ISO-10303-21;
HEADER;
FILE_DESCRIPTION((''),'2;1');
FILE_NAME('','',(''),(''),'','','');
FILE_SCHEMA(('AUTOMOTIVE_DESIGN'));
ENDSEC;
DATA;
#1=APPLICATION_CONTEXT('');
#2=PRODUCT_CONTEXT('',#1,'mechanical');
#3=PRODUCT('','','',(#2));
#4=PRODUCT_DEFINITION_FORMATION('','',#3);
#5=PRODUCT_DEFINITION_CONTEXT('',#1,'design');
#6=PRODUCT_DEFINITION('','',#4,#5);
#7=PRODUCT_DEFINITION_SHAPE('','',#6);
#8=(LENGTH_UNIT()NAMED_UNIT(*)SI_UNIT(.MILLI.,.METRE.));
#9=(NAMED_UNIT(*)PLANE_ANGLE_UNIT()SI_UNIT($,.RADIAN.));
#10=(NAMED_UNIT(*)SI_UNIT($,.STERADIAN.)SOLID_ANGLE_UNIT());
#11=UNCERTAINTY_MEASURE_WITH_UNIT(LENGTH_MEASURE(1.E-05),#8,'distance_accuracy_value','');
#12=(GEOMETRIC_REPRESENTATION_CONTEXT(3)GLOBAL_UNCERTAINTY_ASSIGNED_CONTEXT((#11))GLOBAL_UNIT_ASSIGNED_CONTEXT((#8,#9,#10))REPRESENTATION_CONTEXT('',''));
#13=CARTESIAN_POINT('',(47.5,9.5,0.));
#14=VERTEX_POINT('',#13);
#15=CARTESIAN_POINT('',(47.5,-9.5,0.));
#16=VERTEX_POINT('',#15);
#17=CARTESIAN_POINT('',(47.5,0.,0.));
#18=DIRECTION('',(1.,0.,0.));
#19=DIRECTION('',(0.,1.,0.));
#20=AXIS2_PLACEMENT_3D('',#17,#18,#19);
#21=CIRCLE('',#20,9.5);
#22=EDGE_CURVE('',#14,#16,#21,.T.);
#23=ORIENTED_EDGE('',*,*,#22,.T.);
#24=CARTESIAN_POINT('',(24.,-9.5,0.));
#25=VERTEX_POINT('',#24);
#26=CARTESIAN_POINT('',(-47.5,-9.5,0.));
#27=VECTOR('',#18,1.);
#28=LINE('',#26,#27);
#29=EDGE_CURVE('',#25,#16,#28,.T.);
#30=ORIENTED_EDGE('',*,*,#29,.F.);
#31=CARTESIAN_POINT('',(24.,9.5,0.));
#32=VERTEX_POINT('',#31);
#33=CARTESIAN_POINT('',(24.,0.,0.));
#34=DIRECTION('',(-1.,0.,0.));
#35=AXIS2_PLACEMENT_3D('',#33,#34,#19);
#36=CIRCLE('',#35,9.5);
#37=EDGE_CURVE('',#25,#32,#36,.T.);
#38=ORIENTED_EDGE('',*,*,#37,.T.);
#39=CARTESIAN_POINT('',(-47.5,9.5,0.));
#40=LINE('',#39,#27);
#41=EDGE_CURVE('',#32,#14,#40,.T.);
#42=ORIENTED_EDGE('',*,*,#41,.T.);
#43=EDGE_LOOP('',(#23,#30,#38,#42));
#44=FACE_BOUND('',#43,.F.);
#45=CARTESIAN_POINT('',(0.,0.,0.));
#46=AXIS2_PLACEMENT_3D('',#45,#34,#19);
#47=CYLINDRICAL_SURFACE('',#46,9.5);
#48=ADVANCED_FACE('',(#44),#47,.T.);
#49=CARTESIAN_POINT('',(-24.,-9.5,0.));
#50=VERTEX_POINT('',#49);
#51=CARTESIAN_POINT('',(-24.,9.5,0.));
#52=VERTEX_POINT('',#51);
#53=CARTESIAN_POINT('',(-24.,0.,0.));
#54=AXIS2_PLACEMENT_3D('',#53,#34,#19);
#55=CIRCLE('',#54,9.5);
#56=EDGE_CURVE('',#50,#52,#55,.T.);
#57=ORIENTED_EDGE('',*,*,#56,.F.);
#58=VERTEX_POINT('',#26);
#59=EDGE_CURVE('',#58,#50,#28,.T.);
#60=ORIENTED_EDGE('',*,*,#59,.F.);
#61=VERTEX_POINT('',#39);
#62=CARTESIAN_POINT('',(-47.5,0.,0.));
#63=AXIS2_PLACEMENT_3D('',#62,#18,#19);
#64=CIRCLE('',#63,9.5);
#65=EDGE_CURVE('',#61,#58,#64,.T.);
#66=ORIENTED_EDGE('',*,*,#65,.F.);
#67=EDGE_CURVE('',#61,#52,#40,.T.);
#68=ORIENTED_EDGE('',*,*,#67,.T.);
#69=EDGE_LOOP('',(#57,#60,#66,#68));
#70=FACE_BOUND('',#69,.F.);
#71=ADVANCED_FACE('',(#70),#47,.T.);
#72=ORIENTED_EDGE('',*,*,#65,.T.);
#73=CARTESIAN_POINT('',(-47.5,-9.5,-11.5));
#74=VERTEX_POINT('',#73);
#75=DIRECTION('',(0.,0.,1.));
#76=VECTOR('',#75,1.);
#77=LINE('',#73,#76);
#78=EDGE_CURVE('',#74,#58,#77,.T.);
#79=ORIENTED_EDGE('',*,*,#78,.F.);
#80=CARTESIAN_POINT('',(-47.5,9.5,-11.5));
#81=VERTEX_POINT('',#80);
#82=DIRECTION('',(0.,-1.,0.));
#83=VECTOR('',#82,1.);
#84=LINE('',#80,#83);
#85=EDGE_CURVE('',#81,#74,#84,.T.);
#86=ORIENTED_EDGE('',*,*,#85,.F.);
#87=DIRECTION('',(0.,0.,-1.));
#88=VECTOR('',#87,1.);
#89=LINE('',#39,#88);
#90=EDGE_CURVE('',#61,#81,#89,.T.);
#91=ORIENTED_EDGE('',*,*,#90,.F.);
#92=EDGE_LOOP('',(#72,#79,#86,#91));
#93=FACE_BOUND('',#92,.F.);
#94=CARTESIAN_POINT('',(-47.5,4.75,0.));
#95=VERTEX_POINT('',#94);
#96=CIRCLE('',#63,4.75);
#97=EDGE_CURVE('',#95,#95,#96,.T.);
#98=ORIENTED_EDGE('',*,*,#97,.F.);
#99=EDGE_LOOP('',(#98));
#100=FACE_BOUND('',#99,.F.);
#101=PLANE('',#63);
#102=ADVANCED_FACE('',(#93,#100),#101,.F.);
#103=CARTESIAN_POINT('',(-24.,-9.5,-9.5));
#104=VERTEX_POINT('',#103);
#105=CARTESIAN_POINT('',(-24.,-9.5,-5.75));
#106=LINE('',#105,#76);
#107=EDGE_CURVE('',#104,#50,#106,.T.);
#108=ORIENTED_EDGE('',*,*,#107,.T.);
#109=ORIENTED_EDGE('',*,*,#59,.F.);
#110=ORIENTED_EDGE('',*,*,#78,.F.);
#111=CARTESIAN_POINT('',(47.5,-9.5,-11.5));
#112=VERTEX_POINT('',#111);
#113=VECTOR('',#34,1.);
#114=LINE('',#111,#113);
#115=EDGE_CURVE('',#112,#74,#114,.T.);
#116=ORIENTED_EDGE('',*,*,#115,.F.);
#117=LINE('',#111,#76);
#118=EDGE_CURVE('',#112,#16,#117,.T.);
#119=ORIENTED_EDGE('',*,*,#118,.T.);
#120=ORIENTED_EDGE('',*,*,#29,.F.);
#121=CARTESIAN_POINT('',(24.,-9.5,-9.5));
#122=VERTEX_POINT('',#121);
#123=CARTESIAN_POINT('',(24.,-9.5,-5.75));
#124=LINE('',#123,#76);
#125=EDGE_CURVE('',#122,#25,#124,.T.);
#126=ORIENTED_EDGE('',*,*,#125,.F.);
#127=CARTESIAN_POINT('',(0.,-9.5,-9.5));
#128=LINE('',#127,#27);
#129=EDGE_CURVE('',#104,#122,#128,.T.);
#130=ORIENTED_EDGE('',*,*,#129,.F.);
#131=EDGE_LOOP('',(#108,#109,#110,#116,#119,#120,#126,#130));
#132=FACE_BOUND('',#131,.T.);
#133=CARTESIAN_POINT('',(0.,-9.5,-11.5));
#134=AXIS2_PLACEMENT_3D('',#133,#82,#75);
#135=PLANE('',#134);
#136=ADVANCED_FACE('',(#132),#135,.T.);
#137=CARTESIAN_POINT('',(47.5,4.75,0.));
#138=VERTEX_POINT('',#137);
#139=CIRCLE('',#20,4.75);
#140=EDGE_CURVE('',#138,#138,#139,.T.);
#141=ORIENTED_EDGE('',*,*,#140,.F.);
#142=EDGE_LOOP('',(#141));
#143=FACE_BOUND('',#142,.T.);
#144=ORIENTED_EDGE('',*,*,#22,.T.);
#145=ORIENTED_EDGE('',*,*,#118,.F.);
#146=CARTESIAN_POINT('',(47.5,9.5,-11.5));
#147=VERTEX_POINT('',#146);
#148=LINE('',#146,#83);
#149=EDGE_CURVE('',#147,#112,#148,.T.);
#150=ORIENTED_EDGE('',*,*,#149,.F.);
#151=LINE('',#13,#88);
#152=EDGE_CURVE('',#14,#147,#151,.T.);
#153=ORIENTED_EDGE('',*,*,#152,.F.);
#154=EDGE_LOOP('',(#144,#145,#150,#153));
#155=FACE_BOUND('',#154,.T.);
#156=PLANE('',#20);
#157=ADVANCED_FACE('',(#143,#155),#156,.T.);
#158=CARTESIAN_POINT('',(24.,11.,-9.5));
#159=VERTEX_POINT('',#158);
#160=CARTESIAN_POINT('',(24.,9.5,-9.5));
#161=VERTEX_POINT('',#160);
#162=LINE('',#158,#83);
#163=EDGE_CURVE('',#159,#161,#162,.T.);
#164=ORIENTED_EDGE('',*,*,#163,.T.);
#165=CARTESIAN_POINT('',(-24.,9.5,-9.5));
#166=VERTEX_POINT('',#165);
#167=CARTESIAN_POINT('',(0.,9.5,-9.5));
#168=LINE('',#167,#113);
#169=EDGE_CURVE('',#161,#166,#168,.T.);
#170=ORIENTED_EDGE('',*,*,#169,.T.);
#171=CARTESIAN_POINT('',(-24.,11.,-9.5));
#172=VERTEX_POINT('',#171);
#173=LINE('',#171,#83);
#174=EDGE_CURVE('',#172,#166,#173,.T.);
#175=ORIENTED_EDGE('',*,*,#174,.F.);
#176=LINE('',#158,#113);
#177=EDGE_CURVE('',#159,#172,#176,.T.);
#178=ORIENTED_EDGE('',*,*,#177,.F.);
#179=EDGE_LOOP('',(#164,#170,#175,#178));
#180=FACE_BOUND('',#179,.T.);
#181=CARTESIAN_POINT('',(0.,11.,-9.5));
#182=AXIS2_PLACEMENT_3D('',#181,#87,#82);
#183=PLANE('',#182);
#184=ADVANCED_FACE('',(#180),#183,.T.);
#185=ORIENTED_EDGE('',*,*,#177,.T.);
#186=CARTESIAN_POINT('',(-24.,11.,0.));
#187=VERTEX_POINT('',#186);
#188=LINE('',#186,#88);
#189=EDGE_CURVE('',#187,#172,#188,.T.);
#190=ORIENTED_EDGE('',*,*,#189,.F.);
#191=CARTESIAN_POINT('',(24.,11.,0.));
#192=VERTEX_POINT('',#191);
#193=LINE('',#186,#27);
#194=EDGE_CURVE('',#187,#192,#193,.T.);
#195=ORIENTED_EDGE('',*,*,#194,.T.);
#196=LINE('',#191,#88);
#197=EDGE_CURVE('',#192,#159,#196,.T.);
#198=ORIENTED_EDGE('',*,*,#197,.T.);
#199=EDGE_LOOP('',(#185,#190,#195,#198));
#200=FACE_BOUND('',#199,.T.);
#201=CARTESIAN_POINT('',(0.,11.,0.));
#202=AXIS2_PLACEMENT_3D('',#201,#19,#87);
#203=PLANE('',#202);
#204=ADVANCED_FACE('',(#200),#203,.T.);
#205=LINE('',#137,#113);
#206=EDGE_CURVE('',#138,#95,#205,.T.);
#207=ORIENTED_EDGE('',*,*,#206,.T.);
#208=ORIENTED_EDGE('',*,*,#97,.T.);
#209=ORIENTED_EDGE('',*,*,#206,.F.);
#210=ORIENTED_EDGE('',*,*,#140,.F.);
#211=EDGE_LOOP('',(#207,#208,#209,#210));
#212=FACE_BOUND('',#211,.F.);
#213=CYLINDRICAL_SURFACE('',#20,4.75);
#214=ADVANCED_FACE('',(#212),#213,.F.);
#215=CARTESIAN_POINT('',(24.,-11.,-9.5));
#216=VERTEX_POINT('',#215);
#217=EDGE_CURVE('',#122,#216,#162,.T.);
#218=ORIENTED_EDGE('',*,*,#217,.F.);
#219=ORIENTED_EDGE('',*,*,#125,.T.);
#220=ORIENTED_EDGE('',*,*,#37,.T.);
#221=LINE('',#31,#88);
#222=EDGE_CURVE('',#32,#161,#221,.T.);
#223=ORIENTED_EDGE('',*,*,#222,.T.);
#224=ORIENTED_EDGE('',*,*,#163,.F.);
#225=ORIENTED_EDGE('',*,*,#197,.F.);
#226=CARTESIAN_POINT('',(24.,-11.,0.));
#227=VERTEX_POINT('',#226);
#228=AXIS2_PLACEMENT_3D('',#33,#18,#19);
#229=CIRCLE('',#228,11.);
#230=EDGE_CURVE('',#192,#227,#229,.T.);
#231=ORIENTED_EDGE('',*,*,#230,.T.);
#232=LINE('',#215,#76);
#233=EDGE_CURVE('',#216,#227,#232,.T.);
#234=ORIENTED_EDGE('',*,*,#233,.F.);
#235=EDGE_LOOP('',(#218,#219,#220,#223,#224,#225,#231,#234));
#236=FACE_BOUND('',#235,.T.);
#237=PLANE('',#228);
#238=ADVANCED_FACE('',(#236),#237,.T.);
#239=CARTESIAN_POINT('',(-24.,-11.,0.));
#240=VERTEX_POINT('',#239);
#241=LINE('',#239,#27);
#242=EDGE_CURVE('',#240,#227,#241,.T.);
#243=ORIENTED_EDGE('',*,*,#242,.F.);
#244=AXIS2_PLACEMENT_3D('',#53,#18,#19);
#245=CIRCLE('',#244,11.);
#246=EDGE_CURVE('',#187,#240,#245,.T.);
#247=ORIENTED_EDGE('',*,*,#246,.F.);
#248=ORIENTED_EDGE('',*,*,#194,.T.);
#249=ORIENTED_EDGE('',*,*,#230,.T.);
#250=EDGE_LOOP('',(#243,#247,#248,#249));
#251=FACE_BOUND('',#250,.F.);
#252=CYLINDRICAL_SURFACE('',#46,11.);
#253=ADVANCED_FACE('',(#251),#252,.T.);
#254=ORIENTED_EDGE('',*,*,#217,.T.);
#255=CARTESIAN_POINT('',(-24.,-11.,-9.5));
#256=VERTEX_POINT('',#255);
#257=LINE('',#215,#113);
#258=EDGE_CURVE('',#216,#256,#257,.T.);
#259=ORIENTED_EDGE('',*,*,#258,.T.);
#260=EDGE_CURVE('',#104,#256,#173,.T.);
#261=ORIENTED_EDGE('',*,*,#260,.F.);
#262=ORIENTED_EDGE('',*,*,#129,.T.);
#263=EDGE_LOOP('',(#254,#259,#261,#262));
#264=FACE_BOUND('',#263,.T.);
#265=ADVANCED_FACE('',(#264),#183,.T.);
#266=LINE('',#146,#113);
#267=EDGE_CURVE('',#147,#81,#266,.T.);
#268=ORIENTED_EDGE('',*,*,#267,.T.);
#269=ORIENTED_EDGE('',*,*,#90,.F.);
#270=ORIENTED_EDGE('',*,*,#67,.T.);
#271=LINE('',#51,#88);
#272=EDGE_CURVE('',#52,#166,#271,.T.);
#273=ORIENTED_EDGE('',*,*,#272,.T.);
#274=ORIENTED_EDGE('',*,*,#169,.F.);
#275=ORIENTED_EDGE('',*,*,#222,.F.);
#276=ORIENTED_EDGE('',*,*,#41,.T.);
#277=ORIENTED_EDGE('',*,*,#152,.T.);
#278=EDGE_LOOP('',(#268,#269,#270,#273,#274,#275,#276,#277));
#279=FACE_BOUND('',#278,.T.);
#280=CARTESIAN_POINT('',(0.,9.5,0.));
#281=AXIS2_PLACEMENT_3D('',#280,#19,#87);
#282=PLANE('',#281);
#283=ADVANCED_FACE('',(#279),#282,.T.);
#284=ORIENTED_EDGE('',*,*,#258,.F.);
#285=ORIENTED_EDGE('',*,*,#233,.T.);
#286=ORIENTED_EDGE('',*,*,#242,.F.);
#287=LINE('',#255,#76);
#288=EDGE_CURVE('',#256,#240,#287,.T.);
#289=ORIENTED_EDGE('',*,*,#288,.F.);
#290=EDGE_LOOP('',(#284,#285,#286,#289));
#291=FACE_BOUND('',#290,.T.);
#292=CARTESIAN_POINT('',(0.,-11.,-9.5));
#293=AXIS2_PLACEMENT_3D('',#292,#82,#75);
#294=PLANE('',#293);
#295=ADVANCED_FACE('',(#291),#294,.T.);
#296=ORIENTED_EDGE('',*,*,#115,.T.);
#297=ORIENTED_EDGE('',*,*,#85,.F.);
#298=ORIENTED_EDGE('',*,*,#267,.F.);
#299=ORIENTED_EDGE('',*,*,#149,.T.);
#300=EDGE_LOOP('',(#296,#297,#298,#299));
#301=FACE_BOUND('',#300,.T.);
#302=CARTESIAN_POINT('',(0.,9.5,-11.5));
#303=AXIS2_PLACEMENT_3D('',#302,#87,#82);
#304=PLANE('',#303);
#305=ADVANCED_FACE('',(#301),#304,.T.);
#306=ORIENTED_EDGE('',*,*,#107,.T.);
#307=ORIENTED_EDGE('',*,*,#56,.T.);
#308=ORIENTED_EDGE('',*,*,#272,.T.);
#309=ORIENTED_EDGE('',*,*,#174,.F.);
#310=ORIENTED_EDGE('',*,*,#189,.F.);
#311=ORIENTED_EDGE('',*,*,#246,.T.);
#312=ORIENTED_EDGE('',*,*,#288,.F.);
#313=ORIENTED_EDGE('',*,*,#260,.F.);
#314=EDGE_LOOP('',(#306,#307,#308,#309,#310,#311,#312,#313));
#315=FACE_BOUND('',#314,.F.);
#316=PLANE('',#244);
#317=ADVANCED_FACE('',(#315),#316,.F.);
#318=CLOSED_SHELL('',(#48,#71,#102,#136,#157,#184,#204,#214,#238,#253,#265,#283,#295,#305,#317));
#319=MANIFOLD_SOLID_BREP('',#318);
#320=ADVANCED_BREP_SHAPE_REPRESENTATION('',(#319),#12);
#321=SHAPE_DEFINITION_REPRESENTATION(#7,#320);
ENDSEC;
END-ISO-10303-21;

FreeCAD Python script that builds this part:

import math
import FreeCAD as App
import Part
import Sketcher
from FreeCAD import Vector

doc = App.newDocument("Part")
params = doc.addObject("Spreadsheet::Sheet", "Params")
for row, (alias, value) in enumerate([
    ("sketch1_radius", "9.5 mm"),
    ("sketch1_height", "11.5 mm"),
    ("pad1_length", "95 mm"),
    ("sketch2_radius", "11 mm"),
    ("sketch2_height", "9.5 mm"),
    ("pad2_length", "48 mm"),
    ("sketch3_diameter", "9.5 mm"),
], start=1):
    params.set(f"A{row}", alias)
    params.set(f"B{row}", "=" + value)
    params.setAlias(f"B{row}", alias)

body = doc.addObject("PartDesign::Body", "Body")

# Sketch on YZ plane
sketch1 = body.newObject("Sketcher::SketchObject", "Sketch")
sketch1.AttachmentSupport = (doc.getObject("YZ_Plane"), [""])
sketch1.MapMode = "FlatFace"
sketch1.addGeometry(Part.LineSegment(Vector(9.5, -11.5, 0), Vector(9.5, 0, 0)), False)
sketch1.addGeometry(Part.ArcOfCircle(Part.Circle(Vector(0, 0, 0), Vector(0, 0, 1), 9.5), math.radians(0), math.radians(180)), False)
sketch1.addGeometry(Part.LineSegment(Vector(-9.5, 0, 0), Vector(-9.5, -11.5, 0)), False)
sketch1.addGeometry(Part.LineSegment(Vector(-9.5, -11.5, 0), Vector(9.5, -11.5, 0)), False)
sketch1.addConstraint(Sketcher.Constraint("Tangent", 0, 2, 1, 1))
sketch1.addConstraint(Sketcher.Constraint("Tangent", 1, 2, 2, 1))
sketch1.addConstraint(Sketcher.Constraint("Coincident", 2, 2, 3, 1))
sketch1.addConstraint(Sketcher.Constraint("Coincident", 3, 2, 0, 1))
sketch1.addConstraint(Sketcher.Constraint("Vertical", 0))
sketch1.addConstraint(Sketcher.Constraint("Vertical", 2))
sketch1.addConstraint(Sketcher.Constraint("Horizontal", 3))
sketch1.addConstraint(Sketcher.Constraint("Coincident", 1, 3, -1, 1))
sketch1.addConstraint(Sketcher.Constraint("Radius", 1, 9.5))
sketch1.addConstraint(Sketcher.Constraint("DistanceY", 0, 1, 0, 2, 11.5))
sketch1.setExpression("Constraints[8]", "Params.sketch1_radius")
sketch1.setExpression("Constraints[9]", "Params.sketch1_height")
pad1 = body.newObject("PartDesign::Pad", "Pad")
pad1.Profile = sketch1
pad1.setExpression("Length", "Params.pad1_length")
pad1.Midplane = True

# Sketch on YZ plane
sketch2 = body.newObject("Sketcher::SketchObject", "Sketch001")
sketch2.AttachmentSupport = (doc.getObject("YZ_Plane"), [""])
sketch2.MapMode = "FlatFace"
sketch2.addGeometry(Part.LineSegment(Vector(11, -9.5, 0), Vector(11, 0, 0)), False)
sketch2.addGeometry(Part.ArcOfCircle(Part.Circle(Vector(0, 0, 0), Vector(0, 0, 1), 11), math.radians(0), math.radians(180)), False)
sketch2.addGeometry(Part.LineSegment(Vector(-11, 0, 0), Vector(-11, -9.5, 0)), False)
sketch2.addGeometry(Part.LineSegment(Vector(-11, -9.5, 0), Vector(11, -9.5, 0)), False)
sketch2.addConstraint(Sketcher.Constraint("Tangent", 0, 2, 1, 1))
sketch2.addConstraint(Sketcher.Constraint("Tangent", 1, 2, 2, 1))
sketch2.addConstraint(Sketcher.Constraint("Coincident", 2, 2, 3, 1))
sketch2.addConstraint(Sketcher.Constraint("Coincident", 3, 2, 0, 1))
sketch2.addConstraint(Sketcher.Constraint("Vertical", 0))
sketch2.addConstraint(Sketcher.Constraint("Vertical", 2))
sketch2.addConstraint(Sketcher.Constraint("Horizontal", 3))
sketch2.addConstraint(Sketcher.Constraint("Coincident", 1, 3, -1, 1))
sketch2.addConstraint(Sketcher.Constraint("Radius", 1, 11.0))
sketch2.addConstraint(Sketcher.Constraint("DistanceY", 0, 1, 0, 2, 9.5))
sketch2.setExpression("Constraints[8]", "Params.sketch2_radius")
sketch2.setExpression("Constraints[9]", "Params.sketch2_height")
pad2 = body.newObject("PartDesign::Pad", "Pad001")
pad2.Profile = sketch2
pad2.setExpression("Length", "Params.pad2_length")
pad2.Midplane = True

# Sketch on YZ plane
sketch3 = body.newObject("Sketcher::SketchObject", "Sketch002")
sketch3.AttachmentSupport = (doc.getObject("YZ_Plane"), [""])
sketch3.MapMode = "FlatFace"
sketch3.AttachmentOffset = App.Placement(Vector(0, 0, 47.5), App.Rotation())
sketch3.addGeometry(Part.Circle(Vector(0, 0, 0), Vector(0, 0, 1), 4.75), False)
sketch3.addConstraint(Sketcher.Constraint("Coincident", 0, 3, -1, 1))
sketch3.addConstraint(Sketcher.Constraint("Diameter", 0, 9.5))
sketch3.setExpression("Constraints[1]", "Params.sketch3_diameter")
pocket1 = body.newObject("PartDesign::Pocket", "Pocket")
pocket1.Profile = sketch3
pocket1.Type = "ThroughAll"
pocket1.Midplane = True

doc.recompute()
